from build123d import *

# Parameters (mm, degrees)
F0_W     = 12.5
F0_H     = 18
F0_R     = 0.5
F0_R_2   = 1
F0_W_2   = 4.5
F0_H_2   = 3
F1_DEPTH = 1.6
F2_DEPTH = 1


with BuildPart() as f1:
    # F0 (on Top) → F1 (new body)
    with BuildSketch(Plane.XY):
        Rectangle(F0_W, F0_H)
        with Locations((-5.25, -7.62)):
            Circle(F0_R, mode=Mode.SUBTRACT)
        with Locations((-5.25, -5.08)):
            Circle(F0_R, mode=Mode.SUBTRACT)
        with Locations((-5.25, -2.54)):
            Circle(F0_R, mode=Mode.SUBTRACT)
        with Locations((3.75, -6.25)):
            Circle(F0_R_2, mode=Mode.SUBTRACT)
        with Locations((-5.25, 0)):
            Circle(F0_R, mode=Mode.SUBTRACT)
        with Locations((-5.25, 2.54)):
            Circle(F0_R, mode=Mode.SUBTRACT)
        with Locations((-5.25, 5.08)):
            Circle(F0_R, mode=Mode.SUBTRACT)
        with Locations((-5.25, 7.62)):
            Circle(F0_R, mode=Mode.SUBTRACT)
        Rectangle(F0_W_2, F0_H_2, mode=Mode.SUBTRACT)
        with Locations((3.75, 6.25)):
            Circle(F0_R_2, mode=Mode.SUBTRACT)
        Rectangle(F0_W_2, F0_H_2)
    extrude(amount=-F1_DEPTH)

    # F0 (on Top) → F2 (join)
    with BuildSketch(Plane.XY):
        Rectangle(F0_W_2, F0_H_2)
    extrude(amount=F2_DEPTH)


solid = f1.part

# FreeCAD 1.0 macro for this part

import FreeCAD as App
import Part
import Sketcher


def add_polygon(sketch, points):
    """Adds a closed chain of lines whose ends are joined by coincident constraints."""
    first, n = sketch.GeometryCount, len(points)
    for a, b in zip(points, points[1:] + points[:1]):
        sketch.addGeometry(Part.LineSegment(App.Vector(*a, 0), App.Vector(*b, 0)), False)
    for i in range(n):
        sketch.addConstraint(Sketcher.Constraint("Coincident", first + i, 2, first + (i + 1) % n, 1))

doc = App.newDocument("Part")
params = doc.addObject("Spreadsheet::Sheet", "Params")
for row, (alias, value) in enumerate([
    ("sketch1_diameter", "1 mm"),
    ("sketch1_diameter2", "2 mm"),
    ("sketch1_height", "18 mm"),
    ("sketch1_width", "12.5 mm"),
    ("pad1_length", "1.6 mm"),
    ("sketch2_height", "3 mm"),
    ("sketch2_width", "4.5 mm"),
    ("pad2_length", "1 mm"),
], start=1):
    params.set(f"A{row}", alias)
    params.set(f"B{row}", "=" + value)
    params.setAlias(f"B{row}", alias)

body = doc.addObject("PartDesign::Body", "Body")

# Sketch on XY plane
sketch1 = doc.addObject("Sketcher::SketchObject", "Sketch")
body.addObject(sketch1)
sketch1.AttachmentSupport = (doc.XY_Plane, [""])
sketch1.MapMode = "FlatFace"
add_polygon(sketch1, [(-6.2, 9), (-6.2, -9), (6.2, -9), (6.2, 9)])  # lines 0-3
sketch1.addGeometry(Part.Circle(App.Vector(-5.2, -7.6, 0), App.Vector(0, 0, 1), 0.5), False)  # 4
sketch1.addGeometry(Part.Circle(App.Vector(-5.2, -5.1, 0), App.Vector(0, 0, 1), 0.5), False)  # 5
sketch1.addGeometry(Part.Circle(App.Vector(-5.2, -2.5, 0), App.Vector(0, 0, 1), 0.5), False)  # 6
sketch1.addGeometry(Part.Circle(App.Vector(3.8, -6.2, 0), App.Vector(0, 0, 1), 1), False)  # 7
sketch1.addGeometry(Part.Circle(App.Vector(-5.2, 0, 0), App.Vector(0, 0, 1), 0.5), False)  # 8
sketch1.addGeometry(Part.Circle(App.Vector(-5.2, 2.5, 0), App.Vector(0, 0, 1), 0.5), False)  # 9
sketch1.addGeometry(Part.Circle(App.Vector(-5.2, 5.1, 0), App.Vector(0, 0, 1), 0.5), False)  # 10
sketch1.addGeometry(Part.Circle(App.Vector(-5.2, 7.6, 0), App.Vector(0, 0, 1), 0.5), False)  # 11
sketch1.addGeometry(Part.Circle(App.Vector(3.8, 6.2, 0), App.Vector(0, 0, 1), 1), False)  # 12
sketch1.addConstraint(Sketcher.Constraint("Vertical", 0))
sketch1.addConstraint(Sketcher.Constraint("Horizontal", 1))
sketch1.addConstraint(Sketcher.Constraint("Vertical", 2))
sketch1.addConstraint(Sketcher.Constraint("Horizontal", 3))
sketch1.addConstraint(Sketcher.Constraint("Equal", 4, 5))
sketch1.addConstraint(Sketcher.Constraint("Equal", 5, 6))
sketch1.addConstraint(Sketcher.Constraint("Equal", 6, 8))
sketch1.addConstraint(Sketcher.Constraint("Equal", 8, 9))
sketch1.addConstraint(Sketcher.Constraint("Equal", 9, 10))
sketch1.addConstraint(Sketcher.Constraint("Equal", 10, 11))
sketch1.addConstraint(Sketcher.Constraint("Equal", 7, 12))
sketch1.addConstraint(Sketcher.Constraint("Symmetric", 0, 2, 2, 2, -1, 1))
sketch1.addConstraint(Sketcher.Constraint("Symmetric", 6, 3, 9, 3, -1))
sketch1.addConstraint(Sketcher.Constraint("Symmetric", 5, 3, 10, 3, -1))
sketch1.addConstraint(Sketcher.Constraint("Symmetric", 4, 3, 11, 3, -1))
sketch1.addConstraint(Sketcher.Constraint("Symmetric", 7, 3, 12, 3, -1))
sketch1.addConstraint(Sketcher.Constraint("PointOnObject", 8, 3, -1))
sketch1.addConstraint(Sketcher.Constraint("Vertical", 4, 3, 5, 3))
sketch1.addConstraint(Sketcher.Constraint("Vertical", 5, 3, 6, 3))
sketch1.addConstraint(Sketcher.Constraint("Vertical", 6, 3, 8, 3))
sketch1.addConstraint(Sketcher.Constraint("Diameter", 4, 1.0))
sketch1.addConstraint(Sketcher.Constraint("Diameter", 7, 2.0))
sketch1.addConstraint(Sketcher.Constraint("DistanceY", 0, 2, 0, 1, 18.0))
sketch1.addConstraint(Sketcher.Constraint("DistanceX", 1, 1, 1, 2, 12.5))
sketch1.addConstraint(Sketcher.Constraint("DistanceX", 5, 3, 7, 3, 9.0))
sketch1.addConstraint(Sketcher.Constraint("DistanceX", 0, 2, 4, 3, 1.0))
sketch1.addConstraint(Sketcher.Constraint("DistanceY", 4, 3, 10, 3, 12.7))
sketch1.addConstraint(Sketcher.Constraint("DistanceY", 7, 3, 12, 3, 12.5))
sketch1.addConstraint(Sketcher.Constraint("DistanceY", 4, 3, -1, 1, 7.62))
sketch1.addConstraint(Sketcher.Constraint("DistanceY", 6, 3, -1, 1, 2.54))
sketch1.setExpression("Constraints[24]", "Params.sketch1_diameter")
sketch1.setExpression("Constraints[25]", "Params.sketch1_diameter2")
sketch1.setExpression("Constraints[26]", "Params.sketch1_height")
sketch1.setExpression("Constraints[27]", "Params.sketch1_width")
pad1 = doc.addObject("PartDesign::Pad", "Pad")
body.addObject(pad1)
pad1.Profile = sketch1
pad1.setExpression("Length", "Params.pad1_length")
pad1.Reversed = True

# Sketch on XY plane
sketch2 = doc.addObject("Sketcher::SketchObject", "Sketch001")
body.addObject(sketch2)
sketch2.AttachmentSupport = (doc.XY_Plane, [""])
sketch2.MapMode = "FlatFace"
add_polygon(sketch2, [(-2.2, 1.5), (-2.2, -1.5), (2.2, -1.5), (2.2, 1.5)])  # lines 0-3
sketch2.addConstraint(Sketcher.Constraint("Vertical", 0))
sketch2.addConstraint(Sketcher.Constraint("Horizontal", 1))
sketch2.addConstraint(Sketcher.Constraint("Vertical", 2))
sketch2.addConstraint(Sketcher.Constraint("Horizontal", 3))
sketch2.addConstraint(Sketcher.Constraint("Symmetric", 0, 2, 2, 2, -1, 1))
sketch2.addConstraint(Sketcher.Constraint("DistanceY", 0, 2, 0, 1, 3.0))
sketch2.addConstraint(Sketcher.Constraint("DistanceX", 1, 1, 1, 2, 4.5))
sketch2.setExpression("Constraints[9]", "Params.sketch2_height")
sketch2.setExpression("Constraints[10]", "Params.sketch2_width")
pad2 = doc.addObject("PartDesign::Pad", "Pad001")
body.addObject(pad2)
pad2.Profile = sketch2
pad2.setExpression("Length", "Params.pad2_length")

doc.recompute()
